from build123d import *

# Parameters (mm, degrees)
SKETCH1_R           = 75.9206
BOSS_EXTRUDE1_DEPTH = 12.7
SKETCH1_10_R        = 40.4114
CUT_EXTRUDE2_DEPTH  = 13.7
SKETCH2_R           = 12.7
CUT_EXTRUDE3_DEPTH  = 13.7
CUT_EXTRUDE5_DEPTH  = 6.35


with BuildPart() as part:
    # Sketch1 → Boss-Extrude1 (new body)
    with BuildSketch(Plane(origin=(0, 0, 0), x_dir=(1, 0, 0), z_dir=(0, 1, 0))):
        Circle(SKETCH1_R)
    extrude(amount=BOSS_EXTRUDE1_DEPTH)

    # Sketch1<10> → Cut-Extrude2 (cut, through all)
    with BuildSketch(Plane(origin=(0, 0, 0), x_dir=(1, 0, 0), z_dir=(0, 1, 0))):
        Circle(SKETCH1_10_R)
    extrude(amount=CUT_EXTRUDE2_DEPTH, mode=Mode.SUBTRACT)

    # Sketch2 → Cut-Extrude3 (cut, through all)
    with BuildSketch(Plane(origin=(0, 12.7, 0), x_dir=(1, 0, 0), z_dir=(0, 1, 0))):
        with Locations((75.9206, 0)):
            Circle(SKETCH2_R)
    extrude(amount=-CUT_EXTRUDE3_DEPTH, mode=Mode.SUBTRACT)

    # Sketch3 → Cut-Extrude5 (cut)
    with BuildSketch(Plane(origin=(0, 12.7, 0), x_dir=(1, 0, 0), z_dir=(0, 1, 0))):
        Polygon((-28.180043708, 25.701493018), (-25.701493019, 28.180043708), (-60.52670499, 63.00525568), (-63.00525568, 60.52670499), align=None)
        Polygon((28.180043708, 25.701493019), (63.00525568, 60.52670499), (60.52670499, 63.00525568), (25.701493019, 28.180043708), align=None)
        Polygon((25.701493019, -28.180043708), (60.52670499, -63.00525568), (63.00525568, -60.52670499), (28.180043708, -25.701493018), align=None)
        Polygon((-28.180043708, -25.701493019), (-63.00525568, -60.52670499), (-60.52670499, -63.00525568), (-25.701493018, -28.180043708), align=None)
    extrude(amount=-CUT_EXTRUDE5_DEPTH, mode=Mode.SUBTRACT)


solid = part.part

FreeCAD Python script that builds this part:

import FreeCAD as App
import Part
import Sketcher
Q = App.Units.Quantity

doc = App.newDocument("Part")
params = doc.addObject("Spreadsheet::Sheet", "Params")
for row, (alias, value) in enumerate([
    ("sketch1_diameter", "5.978 in"),
    ("pad1_length", "0.5 in"),
    ("sketch2_diameter", "3.182 in"),
    ("sketch3_diameter", "1 in"),
    ("sketch4_length", "0.138 in"),
    ("pocket3_length", "0.25 in"),
], start=1):
    params.set(f"A{row}", alias)
    params.set(f"B{row}", "=" + value)
    params.setAlias(f"B{row}", alias)

body = doc.addObject("PartDesign::Body", "Body")

# Sketch on XZ plane
sketch1 = body.newObject("Sketcher::SketchObject", "Sketch")
sketch1.AttachmentSupport = (doc.getObject("XZ_Plane"), [""])
sketch1.MapMode = "FlatFace"
sketch1.addGeometry(Part.Circle(App.Vector(0, 0, 0), App.Vector(0, 0, 1), 76), False)
sketch1.addConstraint([
    Sketcher.Constraint("Coincident", 0, 3, -1, 1),
    Sketcher.Constraint("Diameter", 0, Q("5.978 in")),
])
sketch1.setExpression("Constraints[1]", "Params.sketch1_diameter")
pad1 = body.newObject("PartDesign::Pad", "Pad")
pad1.Profile = sketch1
pad1.setExpression("Length", "Params.pad1_length")
pad1.Reversed = True

# Sketch on XZ plane
sketch2 = body.newObject("Sketcher::SketchObject", "Sketch001")
sketch2.AttachmentSupport = (doc.getObject("XZ_Plane"), [""])
sketch2.MapMode = "FlatFace"
sketch2.addGeometry(Part.Circle(App.Vector(0, 0, 0), App.Vector(0, 0, 1), 40), False)
sketch2.addConstraint([
    Sketcher.Constraint("Coincident", 0, 3, -1, 1),
    Sketcher.Constraint("Diameter", 0, Q("3.182 in")),
])
sketch2.setExpression("Constraints[1]", "Params.sketch2_diameter")
pocket1 = body.newObject("PartDesign::Pocket", "Pocket")
pocket1.Profile = sketch2
pocket1.Type = "ThroughAll"

# Sketch on XZ plane
sketch3 = body.newObject("Sketcher::SketchObject", "Sketch002")
sketch3.AttachmentSupport = (doc.getObject("XZ_Plane"), [""])
sketch3.MapMode = "FlatFace"
sketch3.AttachmentOffset = App.Placement(App.Vector(0, 0, -0.5 * 25.4), App.Rotation())
sketch3.addGeometry(Part.Circle(App.Vector(76, 0, 0), App.Vector(0, 0, 1), 13), False)
sketch3.addConstraint([
    Sketcher.Constraint("PointOnObject", 0, 3, -1),
    Sketcher.Constraint("Diameter", 0, Q("1 in")),
    Sketcher.Constraint("DistanceX", -1, 1, 0, 3, Q("2.989 in")),
])
sketch3.setExpression("Constraints[1]", "Params.sketch3_diameter")
pocket2 = body.newObject("PartDesign::Pocket", "Pocket001")
pocket2.Profile = sketch3
pocket2.Type = "ThroughAll"
pocket2.Reversed = True

# Sketch on XZ plane
sketch4 = body.newObject("Sketcher::SketchObject", "Sketch003")
sketch4.AttachmentSupport = (doc.getObject("XZ_Plane"), [""])
sketch4.MapMode = "FlatFace"
sketch4.AttachmentOffset = App.Placement(App.Vector(0, 0, -0.5 * 25.4), App.Rotation())
sketch4.addGeometry([
    Part.LineSegment(App.Vector(-28.2, -25.7, 0), App.Vector(-25.7, -28.2, 0)),  # 0
    Part.LineSegment(App.Vector(-25.7, -28.2, 0), App.Vector(-60.5, -63, 0)),  # 1
    Part.LineSegment(App.Vector(-60.5, -63, 0), App.Vector(-63, -60.5, 0)),  # 2
    Part.LineSegment(App.Vector(-63, -60.5, 0), App.Vector(-28.2, -25.7, 0)),  # 3
    Part.LineSegment(App.Vector(28.2, -25.7, 0), App.Vector(63, -60.5, 0)),  # 4
    Part.LineSegment(App.Vector(63, -60.5, 0), App.Vector(60.5, -63, 0)),  # 5
    Part.LineSegment(App.Vector(60.5, -63, 0), App.Vector(25.7, -28.2, 0)),  # 6
    Part.LineSegment(App.Vector(25.7, -28.2, 0), App.Vector(28.2, -25.7, 0)),  # 7
    Part.LineSegment(App.Vector(25.7, 28.2, 0), App.Vector(60.5, 63, 0)),  # 8
    Part.LineSegment(App.Vector(60.5, 63, 0), App.Vector(63, 60.5, 0)),  # 9
    Part.LineSegment(App.Vector(63, 60.5, 0), App.Vector(28.2, 25.7, 0)),  # 10
    Part.LineSegment(App.Vector(28.2, 25.7, 0), App.Vector(25.7, 28.2, 0)),  # 11
    Part.LineSegment(App.Vector(-28.2, 25.7, 0), App.Vector(-63, 60.5, 0)),  # 12
    Part.LineSegment(App.Vector(-63, 60.5, 0), App.Vector(-60.5, 63, 0)),  # 13
    Part.LineSegment(App.Vector(-60.5, 63, 0), App.Vector(-25.7, 28.2, 0)),  # 14
    Part.LineSegment(App.Vector(-25.7, 28.2, 0), App.Vector(-28.2, 25.7, 0)),  # 15
], False)
sketch4.addConstraint([
    Sketcher.Constraint("Coincident", 0, 2, 1, 1),
    Sketcher.Constraint("Coincident", 1, 2, 2, 1),
    Sketcher.Constraint("Coincident", 2, 2, 3, 1),
    Sketcher.Constraint("Coincident", 3, 2, 0, 1),
    Sketcher.Constraint("Coincident", 4, 2, 5, 1),
    Sketcher.Constraint("Coincident", 5, 2, 6, 1),
    Sketcher.Constraint("Coincident", 6, 2, 7, 1),
    Sketcher.Constraint("Coincident", 7, 2, 4, 1),
    Sketcher.Constraint("Coincident", 8, 2, 9, 1),
    Sketcher.Constraint("Coincident", 9, 2, 10, 1),
    Sketcher.Constraint("Coincident", 10, 2, 11, 1),
    Sketcher.Constraint("Coincident", 11, 2, 8, 1),
    Sketcher.Constraint("Coincident", 12, 2, 13, 1),
    Sketcher.Constraint("Coincident", 13, 2, 14, 1),
    Sketcher.Constraint("Coincident", 14, 2, 15, 1),
    Sketcher.Constraint("Coincident", 15, 2, 12, 1),
    Sketcher.Constraint("Symmetric", 1, 2, 8, 2, -1, 1),
    Sketcher.Constraint("Symmetric", 2, 2, 9, 2, -1, 1),
    Sketcher.Constraint("Symmetric", 3, 2, 10, 2, -1, 1),
    Sketcher.Constraint("Symmetric", 0, 2, 11, 2, -1, 1),
    Sketcher.Constraint("Symmetric", 4, 2, 12, 2, -1, 1),
    Sketcher.Constraint("Symmetric", 5, 2, 13, 2, -1, 1),
    Sketcher.Constraint("Symmetric", 6, 2, 14, 2, -1, 1),
    Sketcher.Constraint("Symmetric", 7, 2, 15, 2, -1, 1),
    Sketcher.Constraint("Symmetric", 2, 2, 4, 2, -2),
    Sketcher.Constraint("Symmetric", 1, 2, 5, 2, -2),
    Sketcher.Constraint("Symmetric", 0, 2, 6, 2, -2),
    Sketcher.Constraint("Symmetric", 3, 2, 7, 2, -2),
    Sketcher.Constraint("Perpendicular", 0, 1),
    Sketcher.Constraint("Perpendicular", 1, 2),
    Sketcher.Constraint("Perpendicular", 2, 3),
    Sketcher.Constraint("Perpendicular", 3, 4),
    Sketcher.Constraint("Distance", 0, Q("0.138 in")),
    Sketcher.Constraint("DistanceX", 3, 2, 4, 2, Q("91.185299 mm")),
    Sketcher.Constraint("DistanceY", 6, 2, 8, 2, Q("91.185299 mm")),
    Sketcher.Constraint("DistanceX", 1, 2, 0, 2, Q("34.825212 mm")),
])
sketch4.setExpression("Constraints[32]", "Params.sketch4_length")
pocket3 = body.newObject("PartDesign::Pocket", "Pocket002")
pocket3.Profile = sketch4
pocket3.setExpression("Length", "Params.pocket3_length")
pocket3.Reversed = True

doc.recompute()
